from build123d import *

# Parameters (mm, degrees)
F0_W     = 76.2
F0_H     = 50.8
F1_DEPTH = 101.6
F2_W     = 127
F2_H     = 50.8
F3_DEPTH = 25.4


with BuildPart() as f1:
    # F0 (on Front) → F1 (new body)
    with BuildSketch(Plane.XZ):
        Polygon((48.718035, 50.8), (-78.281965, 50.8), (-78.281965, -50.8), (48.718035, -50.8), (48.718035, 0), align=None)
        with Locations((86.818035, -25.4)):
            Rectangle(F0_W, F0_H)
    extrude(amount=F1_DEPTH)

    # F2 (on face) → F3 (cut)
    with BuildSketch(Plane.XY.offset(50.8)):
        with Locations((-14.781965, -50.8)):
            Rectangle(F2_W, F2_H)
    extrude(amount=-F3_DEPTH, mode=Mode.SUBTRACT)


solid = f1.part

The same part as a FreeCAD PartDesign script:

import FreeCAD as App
import Part
import Sketcher
Q = App.Units.Quantity


def add_polygon(sketch, points):
    """Adds a closed chain of lines whose ends are joined by coincident constraints."""
    first, n = sketch.GeometryCount, len(points)
    for a, b in zip(points, points[1:] + points[:1]):
        sketch.addGeometry(Part.LineSegment(App.Vector(*a, 0), App.Vector(*b, 0)), False)
    for i in range(n):
        sketch.addConstraint(Sketcher.Constraint("Coincident", first + i, 2, first + (i + 1) % n, 1))

doc = App.newDocument("Part")
body = doc.addObject("PartDesign::Body", "Body")

# Sketch on XZ plane
sketch1 = doc.addObject("Sketcher::SketchObject", "Sketch")
body.addObject(sketch1)
sketch1.AttachmentSupport = (doc.XZ_Plane, [""])
sketch1.MapMode = "FlatFace"
add_polygon(sketch1, [(49, 51), (-78, 51), (-78, -51), (125, -51), (125, 0), (49, 0)])  # lines 0-5
sketch1.addConstraint([
    Sketcher.Constraint("Horizontal", 0),
    Sketcher.Constraint("Vertical", 1),
    Sketcher.Constraint("Horizontal", 2),
    Sketcher.Constraint("Vertical", 3),
    Sketcher.Constraint("Horizontal", 4),
    Sketcher.Constraint("Vertical", 5),
    Sketcher.Constraint("PointOnObject", 3, 2, -1),
    Sketcher.Constraint("Equal", 3, 5),
    Sketcher.Constraint("DistanceX", 0, 2, 0, 1, Q("5 in")),
    Sketcher.Constraint("DistanceX", 2, 1, 2, 2, Q("8 in")),
    Sketcher.Constraint("DistanceY", 1, 2, 1, 1, Q("4 in")),
    Sketcher.Constraint("DistanceX", 0, 2, -1, 1, 78.281965),
])
pad1 = doc.addObject("PartDesign::Pad", "Pad")
body.addObject(pad1)
pad1.Profile = sketch1
pad1.Length = Q("4 in")

# Sketch on XY plane
sketch2 = doc.addObject("Sketcher::SketchObject", "Sketch001")
body.addObject(sketch2)
sketch2.AttachmentSupport = (doc.XY_Plane, [""])
sketch2.MapMode = "FlatFace"
sketch2.AttachmentOffset = App.Placement(App.Vector(0, 0, 2 * 25.4), App.Rotation())
add_polygon(sketch2, [(-78, -25), (-78, -76), (49, -76), (49, -25)])  # lines 0-3
sketch2.addConstraint([
    Sketcher.Constraint("Vertical", 0),
    Sketcher.Constraint("Horizontal", 1),
    Sketcher.Constraint("Vertical", 2),
    Sketcher.Constraint("Horizontal", 3),
    Sketcher.Constraint("DistanceX", 1, 1, 1, 2, Q("5 in")),
    Sketcher.Constraint("DistanceY", 0, 2, 0, 1, Q("2 in")),
    Sketcher.Constraint("DistanceY", 0, 2, -1, 1, Q("3 in")),
    Sketcher.Constraint("DistanceX", 0, 2, -1, 1, 78.281965),
])
pocket1 = doc.addObject("PartDesign::Pocket", "Pocket")
body.addObject(pocket1)
pocket1.Profile = sketch2
pocket1.Length = Q("1 in")

doc.recompute()
